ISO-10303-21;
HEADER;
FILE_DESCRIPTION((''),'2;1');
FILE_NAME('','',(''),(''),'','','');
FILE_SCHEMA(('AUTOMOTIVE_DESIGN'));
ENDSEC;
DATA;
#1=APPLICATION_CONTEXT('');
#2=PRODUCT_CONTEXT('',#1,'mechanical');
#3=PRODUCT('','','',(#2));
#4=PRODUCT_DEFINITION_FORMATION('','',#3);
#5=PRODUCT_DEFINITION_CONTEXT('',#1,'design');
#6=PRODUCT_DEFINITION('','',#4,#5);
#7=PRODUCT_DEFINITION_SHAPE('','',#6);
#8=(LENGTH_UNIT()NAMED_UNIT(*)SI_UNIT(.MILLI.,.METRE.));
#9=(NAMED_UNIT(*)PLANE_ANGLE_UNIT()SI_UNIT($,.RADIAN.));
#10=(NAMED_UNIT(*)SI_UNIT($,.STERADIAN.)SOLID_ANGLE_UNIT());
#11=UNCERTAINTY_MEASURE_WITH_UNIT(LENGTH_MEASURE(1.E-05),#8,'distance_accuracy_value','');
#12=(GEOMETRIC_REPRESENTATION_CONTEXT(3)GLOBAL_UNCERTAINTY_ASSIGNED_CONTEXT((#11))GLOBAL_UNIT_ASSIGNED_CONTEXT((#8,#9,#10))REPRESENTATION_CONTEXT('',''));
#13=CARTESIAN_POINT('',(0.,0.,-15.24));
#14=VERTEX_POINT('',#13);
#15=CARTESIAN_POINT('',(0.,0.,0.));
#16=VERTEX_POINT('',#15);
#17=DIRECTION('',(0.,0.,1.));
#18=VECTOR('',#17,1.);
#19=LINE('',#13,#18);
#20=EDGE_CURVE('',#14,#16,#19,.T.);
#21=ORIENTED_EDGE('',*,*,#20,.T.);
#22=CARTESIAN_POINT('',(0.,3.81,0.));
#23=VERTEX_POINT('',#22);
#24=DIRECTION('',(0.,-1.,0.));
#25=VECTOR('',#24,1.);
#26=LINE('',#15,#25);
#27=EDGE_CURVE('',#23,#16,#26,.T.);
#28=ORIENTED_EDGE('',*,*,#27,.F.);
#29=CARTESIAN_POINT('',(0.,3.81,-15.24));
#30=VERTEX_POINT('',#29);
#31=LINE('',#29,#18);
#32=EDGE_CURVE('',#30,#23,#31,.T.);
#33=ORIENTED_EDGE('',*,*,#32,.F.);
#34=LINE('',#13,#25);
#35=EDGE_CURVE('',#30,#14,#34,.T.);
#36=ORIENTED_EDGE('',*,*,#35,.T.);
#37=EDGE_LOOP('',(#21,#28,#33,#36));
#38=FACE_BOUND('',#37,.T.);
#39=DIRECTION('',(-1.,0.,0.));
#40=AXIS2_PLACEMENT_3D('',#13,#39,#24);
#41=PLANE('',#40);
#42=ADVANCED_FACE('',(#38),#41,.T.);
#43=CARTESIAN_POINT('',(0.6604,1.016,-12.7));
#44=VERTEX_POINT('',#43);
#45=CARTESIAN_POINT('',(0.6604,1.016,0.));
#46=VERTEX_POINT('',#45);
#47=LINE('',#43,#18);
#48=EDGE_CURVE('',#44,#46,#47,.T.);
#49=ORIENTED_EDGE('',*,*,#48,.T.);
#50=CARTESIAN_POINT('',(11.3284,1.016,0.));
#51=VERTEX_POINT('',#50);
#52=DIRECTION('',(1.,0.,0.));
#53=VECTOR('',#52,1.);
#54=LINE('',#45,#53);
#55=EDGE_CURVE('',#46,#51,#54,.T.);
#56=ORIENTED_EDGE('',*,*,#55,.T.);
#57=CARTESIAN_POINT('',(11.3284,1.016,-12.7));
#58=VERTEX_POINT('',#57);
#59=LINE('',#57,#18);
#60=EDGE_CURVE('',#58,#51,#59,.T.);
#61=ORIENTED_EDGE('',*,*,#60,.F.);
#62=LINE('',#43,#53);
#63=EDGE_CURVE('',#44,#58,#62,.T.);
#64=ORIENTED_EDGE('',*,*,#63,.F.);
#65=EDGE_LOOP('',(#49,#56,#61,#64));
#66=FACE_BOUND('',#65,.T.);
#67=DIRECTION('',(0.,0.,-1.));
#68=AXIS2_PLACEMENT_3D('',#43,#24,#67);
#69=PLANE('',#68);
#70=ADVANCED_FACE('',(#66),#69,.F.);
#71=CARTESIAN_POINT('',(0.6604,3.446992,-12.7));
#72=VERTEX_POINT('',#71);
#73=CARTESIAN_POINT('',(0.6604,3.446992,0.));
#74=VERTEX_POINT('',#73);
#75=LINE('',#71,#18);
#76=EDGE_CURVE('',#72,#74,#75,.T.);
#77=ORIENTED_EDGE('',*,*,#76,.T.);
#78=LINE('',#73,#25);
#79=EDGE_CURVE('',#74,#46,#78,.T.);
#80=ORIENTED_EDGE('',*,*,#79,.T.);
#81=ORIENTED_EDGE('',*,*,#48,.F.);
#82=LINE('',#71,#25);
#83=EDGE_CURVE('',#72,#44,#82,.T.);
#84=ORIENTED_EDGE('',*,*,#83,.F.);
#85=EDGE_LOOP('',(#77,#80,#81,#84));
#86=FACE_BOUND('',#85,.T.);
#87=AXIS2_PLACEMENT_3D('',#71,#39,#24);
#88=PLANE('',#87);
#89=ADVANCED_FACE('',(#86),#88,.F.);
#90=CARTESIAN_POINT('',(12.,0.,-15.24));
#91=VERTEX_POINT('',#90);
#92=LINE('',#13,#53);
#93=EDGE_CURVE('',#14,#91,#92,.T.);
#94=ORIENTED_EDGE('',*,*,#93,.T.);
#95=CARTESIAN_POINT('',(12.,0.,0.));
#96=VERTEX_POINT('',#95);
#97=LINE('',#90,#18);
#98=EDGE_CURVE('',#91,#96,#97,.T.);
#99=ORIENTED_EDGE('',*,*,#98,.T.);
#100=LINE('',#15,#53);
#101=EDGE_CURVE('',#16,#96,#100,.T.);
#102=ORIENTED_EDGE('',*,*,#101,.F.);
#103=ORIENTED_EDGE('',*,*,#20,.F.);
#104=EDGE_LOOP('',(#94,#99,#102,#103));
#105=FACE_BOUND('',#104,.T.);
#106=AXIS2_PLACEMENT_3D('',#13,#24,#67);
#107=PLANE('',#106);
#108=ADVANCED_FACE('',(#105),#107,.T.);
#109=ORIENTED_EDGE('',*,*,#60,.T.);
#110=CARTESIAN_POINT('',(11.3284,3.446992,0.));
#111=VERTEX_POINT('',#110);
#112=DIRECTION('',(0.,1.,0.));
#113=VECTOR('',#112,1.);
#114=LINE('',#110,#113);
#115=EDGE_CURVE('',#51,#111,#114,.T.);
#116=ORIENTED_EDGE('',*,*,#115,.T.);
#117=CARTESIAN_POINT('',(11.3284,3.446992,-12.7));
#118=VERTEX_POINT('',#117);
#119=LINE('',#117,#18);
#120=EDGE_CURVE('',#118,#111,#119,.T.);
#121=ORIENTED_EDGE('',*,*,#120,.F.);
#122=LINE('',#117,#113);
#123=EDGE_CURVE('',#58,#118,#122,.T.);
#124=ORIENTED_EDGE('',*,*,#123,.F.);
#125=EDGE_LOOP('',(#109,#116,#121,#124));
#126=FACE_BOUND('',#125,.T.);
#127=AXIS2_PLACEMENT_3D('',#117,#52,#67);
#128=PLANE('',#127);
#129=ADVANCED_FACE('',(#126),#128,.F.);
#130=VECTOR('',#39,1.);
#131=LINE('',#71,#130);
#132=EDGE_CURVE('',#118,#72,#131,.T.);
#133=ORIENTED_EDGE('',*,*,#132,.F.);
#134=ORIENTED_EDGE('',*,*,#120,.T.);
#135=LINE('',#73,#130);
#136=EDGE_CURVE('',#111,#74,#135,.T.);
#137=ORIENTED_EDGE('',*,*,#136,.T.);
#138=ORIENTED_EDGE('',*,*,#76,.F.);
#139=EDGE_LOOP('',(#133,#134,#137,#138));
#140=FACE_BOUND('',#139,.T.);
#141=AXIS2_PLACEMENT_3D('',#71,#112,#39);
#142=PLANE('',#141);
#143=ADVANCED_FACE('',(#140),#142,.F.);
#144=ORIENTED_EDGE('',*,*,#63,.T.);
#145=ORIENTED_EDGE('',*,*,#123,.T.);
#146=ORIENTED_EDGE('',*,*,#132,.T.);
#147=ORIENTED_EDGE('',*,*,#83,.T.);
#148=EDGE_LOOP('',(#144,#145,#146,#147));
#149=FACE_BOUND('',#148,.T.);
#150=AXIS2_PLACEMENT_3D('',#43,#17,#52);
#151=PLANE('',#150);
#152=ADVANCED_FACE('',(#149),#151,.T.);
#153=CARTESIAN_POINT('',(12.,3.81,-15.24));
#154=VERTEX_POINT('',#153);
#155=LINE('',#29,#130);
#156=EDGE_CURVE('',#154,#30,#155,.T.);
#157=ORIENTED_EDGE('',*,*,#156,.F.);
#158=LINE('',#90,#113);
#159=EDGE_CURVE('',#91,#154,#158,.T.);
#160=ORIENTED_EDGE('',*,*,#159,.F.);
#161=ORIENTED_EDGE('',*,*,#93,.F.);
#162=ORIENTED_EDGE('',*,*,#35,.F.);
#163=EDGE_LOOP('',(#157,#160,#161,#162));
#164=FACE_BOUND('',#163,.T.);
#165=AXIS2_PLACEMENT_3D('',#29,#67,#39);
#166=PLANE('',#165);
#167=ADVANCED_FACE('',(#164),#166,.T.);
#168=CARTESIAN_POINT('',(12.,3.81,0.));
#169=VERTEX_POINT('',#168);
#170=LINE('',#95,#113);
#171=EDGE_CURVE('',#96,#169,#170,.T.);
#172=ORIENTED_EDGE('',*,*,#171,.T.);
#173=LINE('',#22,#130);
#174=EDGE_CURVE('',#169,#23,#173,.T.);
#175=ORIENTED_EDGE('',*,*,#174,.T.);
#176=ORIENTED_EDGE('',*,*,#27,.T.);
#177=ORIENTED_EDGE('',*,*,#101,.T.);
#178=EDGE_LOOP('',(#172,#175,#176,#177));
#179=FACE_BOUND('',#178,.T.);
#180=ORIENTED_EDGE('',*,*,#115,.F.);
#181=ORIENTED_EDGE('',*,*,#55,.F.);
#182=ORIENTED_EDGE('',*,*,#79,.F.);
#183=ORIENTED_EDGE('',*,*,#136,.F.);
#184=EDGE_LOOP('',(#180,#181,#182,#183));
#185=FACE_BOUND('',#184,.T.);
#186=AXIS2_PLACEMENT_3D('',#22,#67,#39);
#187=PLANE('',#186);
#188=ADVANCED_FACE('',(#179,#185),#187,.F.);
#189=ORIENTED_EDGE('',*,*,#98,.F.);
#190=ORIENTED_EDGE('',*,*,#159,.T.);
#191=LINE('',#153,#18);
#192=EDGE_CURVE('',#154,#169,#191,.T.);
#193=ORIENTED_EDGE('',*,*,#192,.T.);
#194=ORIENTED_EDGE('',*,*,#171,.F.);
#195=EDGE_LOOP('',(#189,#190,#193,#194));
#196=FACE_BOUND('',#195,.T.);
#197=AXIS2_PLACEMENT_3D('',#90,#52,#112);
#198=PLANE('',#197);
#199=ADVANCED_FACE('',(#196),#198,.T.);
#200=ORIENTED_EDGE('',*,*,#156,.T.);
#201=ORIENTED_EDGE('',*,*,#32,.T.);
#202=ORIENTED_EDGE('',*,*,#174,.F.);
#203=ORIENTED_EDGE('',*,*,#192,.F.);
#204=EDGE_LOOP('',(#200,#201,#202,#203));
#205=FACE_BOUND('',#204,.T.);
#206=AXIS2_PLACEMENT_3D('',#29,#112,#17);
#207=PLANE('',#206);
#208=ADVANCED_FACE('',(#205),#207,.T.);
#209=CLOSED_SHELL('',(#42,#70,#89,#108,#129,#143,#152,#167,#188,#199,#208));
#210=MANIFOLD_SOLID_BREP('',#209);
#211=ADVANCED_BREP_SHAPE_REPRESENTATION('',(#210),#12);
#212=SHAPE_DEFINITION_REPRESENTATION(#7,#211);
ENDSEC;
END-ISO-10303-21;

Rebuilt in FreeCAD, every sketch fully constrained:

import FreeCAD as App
import Part
import Sketcher
Q = App.Units.Quantity

doc = App.newDocument("Part")
body = doc.addObject("PartDesign::Body", "Body")

# Sketch on XY plane
sketch1 = body.newObject("Sketcher::SketchObject", "Sketch")
sketch1.AttachmentSupport = (doc.getObject("XY_Plane"), [""])
sketch1.MapMode = "FlatFace"
sketch1.addGeometry([
    Part.LineSegment(App.Vector(0, 3.81, 0), App.Vector(0, 0, 0)),
    Part.LineSegment(App.Vector(0, 0, 0), App.Vector(12, 0, 0)),
    Part.LineSegment(App.Vector(12, 0, 0), App.Vector(12, 3.81, 0)),
    Part.LineSegment(App.Vector(12, 3.81, 0), App.Vector(0, 3.81, 0)),
], False)
sketch1.addConstraint([
    Sketcher.Constraint("Coincident", 0, 2, 1, 1),
    Sketcher.Constraint("Coincident", 1, 2, 2, 1),
    Sketcher.Constraint("Coincident", 2, 2, 3, 1),
    Sketcher.Constraint("Coincident", 3, 2, 0, 1),
    Sketcher.Constraint("Vertical", 0),
    Sketcher.Constraint("Horizontal", 1),
    Sketcher.Constraint("Vertical", 2),
    Sketcher.Constraint("Horizontal", 3),
    Sketcher.Constraint("Coincident", 0, 2, -1, 1),
    Sketcher.Constraint("DistanceY", 0, 2, 0, 1, Q("0.15 in")),
    Sketcher.Constraint("DistanceX", 1, 1, 1, 2, Q("12 mm")),
])
pad1 = body.newObject("PartDesign::Pad", "Pad")
pad1.Profile = sketch1
pad1.Length = Q("0.6 in")
pad1.Reversed = True

# Sketch on XY plane
sketch2 = body.newObject("Sketcher::SketchObject", "Sketch001")
sketch2.AttachmentSupport = (doc.getObject("XY_Plane"), [""])
sketch2.MapMode = "FlatFace"
sketch2.addGeometry([
    Part.LineSegment(App.Vector(0.6604, 3.446992, 0), App.Vector(0.6604, 1.016, 0)),
    Part.LineSegment(App.Vector(0.6604, 1.016, 0), App.Vector(11.3284, 1.016, 0)),
    Part.LineSegment(App.Vector(11.3284, 1.016, 0), App.Vector(11.3284, 3.446992, 0)),
    Part.LineSegment(App.Vector(11.3284, 3.446992, 0), App.Vector(0.6604, 3.446992, 0)),
], False)
sketch2.addConstraint([
    Sketcher.Constraint("Coincident", 0, 2, 1, 1),
    Sketcher.Constraint("Coincident", 1, 2, 2, 1),
    Sketcher.Constraint("Coincident", 2, 2, 3, 1),
    Sketcher.Constraint("Coincident", 3, 2, 0, 1),
    Sketcher.Constraint("Vertical", 0),
    Sketcher.Constraint("Horizontal", 1),
    Sketcher.Constraint("Vertical", 2),
    Sketcher.Constraint("Horizontal", 3),
    Sketcher.Constraint("DistanceX", 1, 1, 1, 2, Q("0.42 in")),
    Sketcher.Constraint("DistanceY", -1, 1, 0, 2, Q("0.04 in")),
    Sketcher.Constraint("DistanceX", -1, 1, 0, 2, Q("0.026 in")),
    Sketcher.Constraint("DistanceY", 0, 2, 0, 1, Q("2.430992 mm")),
])
pocket1 = body.newObject("PartDesign::Pocket", "Pocket")
pocket1.Profile = sketch2
pocket1.Length = Q("0.5 in")

doc.recompute()
